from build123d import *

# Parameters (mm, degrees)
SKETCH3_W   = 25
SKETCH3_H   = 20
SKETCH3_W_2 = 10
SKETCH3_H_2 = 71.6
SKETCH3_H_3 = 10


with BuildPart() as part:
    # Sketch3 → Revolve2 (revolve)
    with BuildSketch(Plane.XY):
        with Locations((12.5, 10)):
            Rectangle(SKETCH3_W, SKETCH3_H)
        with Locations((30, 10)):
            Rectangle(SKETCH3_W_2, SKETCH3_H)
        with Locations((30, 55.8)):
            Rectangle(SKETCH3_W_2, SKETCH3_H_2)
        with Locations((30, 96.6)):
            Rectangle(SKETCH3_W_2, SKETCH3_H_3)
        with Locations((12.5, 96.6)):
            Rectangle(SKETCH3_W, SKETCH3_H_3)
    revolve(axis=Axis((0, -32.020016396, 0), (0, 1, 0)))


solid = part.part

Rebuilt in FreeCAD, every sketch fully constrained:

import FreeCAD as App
import Part
import Sketcher

V = App.Vector


def add_polygon(sketch, points):
    """Adds a closed chain of lines whose ends are joined by coincident constraints."""
    first, n = sketch.GeometryCount, len(points)
    for a, b in zip(points, points[1:] + points[:1]):
        sketch.addGeometry(Part.LineSegment(App.Vector(*a, 0), App.Vector(*b, 0)), False)
    for i in range(n):
        sketch.addConstraint(Sketcher.Constraint("Coincident", first + i, 2, first + (i + 1) % n, 1))

doc = App.newDocument("Part")
body = doc.addObject("PartDesign::Body", "Body")

# Sketch on XY plane
sketch1 = doc.addObject("Sketcher::SketchObject", "Sketch")
body.addObject(sketch1)
sketch1.AttachmentSupport = (doc.XY_Plane, [""])
sketch1.MapMode = "FlatFace"
add_polygon(sketch1, [(0, 20), (0, 0), (35, 0), (35, 102), (0, 102), (0, 92), (25, 92), (25, 20)])  # lines 0-7
sketch1.addConstraint([
    Sketcher.Constraint("Vertical", 0),
    Sketcher.Constraint("Horizontal", 1),
    Sketcher.Constraint("Vertical", 2),
    Sketcher.Constraint("Horizontal", 3),
    Sketcher.Constraint("Vertical", 4),
    Sketcher.Constraint("Horizontal", 5),
    Sketcher.Constraint("Vertical", 6),
    Sketcher.Constraint("Horizontal", 7),
    Sketcher.Constraint("Coincident", 0, 2, -1, 1),
    Sketcher.Constraint("PointOnObject", 3, 2, -2),
    Sketcher.Constraint("DistanceX", 1, 1, 1, 2, 35.0),
    Sketcher.Constraint("DistanceX", 5, 1, 5, 2, 25.0),
    Sketcher.Constraint("DistanceY", 0, 2, 0, 1, 20.0),
    Sketcher.Constraint("DistanceY", 4, 2, 4, 1, 10.0),
    Sketcher.Constraint("DistanceY", 2, 1, 2, 2, 101.6),
])
revolution = doc.addObject("PartDesign::Revolution", "Revolution")
body.addObject(revolution)
revolution.Profile = sketch1
revolution.ReferenceAxis = (sketch1, ["V_Axis"])
revolution.Angle = 360

doc.recompute()
